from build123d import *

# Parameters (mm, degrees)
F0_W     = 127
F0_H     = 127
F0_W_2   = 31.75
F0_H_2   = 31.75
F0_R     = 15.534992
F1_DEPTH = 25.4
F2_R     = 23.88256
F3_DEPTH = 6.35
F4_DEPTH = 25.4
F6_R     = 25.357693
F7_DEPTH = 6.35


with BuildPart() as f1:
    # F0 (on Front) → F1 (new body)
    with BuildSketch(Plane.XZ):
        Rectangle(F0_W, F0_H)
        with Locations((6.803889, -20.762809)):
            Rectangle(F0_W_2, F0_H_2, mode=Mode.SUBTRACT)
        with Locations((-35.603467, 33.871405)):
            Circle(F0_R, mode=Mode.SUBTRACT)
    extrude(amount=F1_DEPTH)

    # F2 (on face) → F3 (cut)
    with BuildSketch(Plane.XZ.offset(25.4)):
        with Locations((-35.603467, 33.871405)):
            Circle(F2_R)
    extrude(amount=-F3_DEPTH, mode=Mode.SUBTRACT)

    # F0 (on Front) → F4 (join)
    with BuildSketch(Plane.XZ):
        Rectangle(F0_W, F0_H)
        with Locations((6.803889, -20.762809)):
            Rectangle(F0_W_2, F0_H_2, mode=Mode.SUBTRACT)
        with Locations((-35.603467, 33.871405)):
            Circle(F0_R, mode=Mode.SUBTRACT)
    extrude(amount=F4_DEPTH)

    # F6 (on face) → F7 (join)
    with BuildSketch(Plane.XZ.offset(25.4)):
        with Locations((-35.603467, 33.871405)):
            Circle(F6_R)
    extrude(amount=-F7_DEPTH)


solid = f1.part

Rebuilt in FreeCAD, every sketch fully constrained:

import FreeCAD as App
import Part
import Sketcher
Q = App.Units.Quantity


def add_polygon(sketch, points):
    """Adds a closed chain of lines whose ends are joined by coincident constraints."""
    first, n = sketch.GeometryCount, len(points)
    for a, b in zip(points, points[1:] + points[:1]):
        sketch.addGeometry(Part.LineSegment(App.Vector(*a, 0), App.Vector(*b, 0)), False)
    for i in range(n):
        sketch.addConstraint(Sketcher.Constraint("Coincident", first + i, 2, first + (i + 1) % n, 1))

doc = App.newDocument("Part")
body = doc.addObject("PartDesign::Body", "Body")

# Sketch on XZ plane
sketch1 = body.newObject("Sketcher::SketchObject", "Sketch")
sketch1.AttachmentSupport = (doc.getObject("XZ_Plane"), [""])
sketch1.MapMode = "FlatFace"
add_polygon(sketch1, [(-63.5, 63.5), (-63.5, -63.5), (63.5, -63.5), (63.5, 63.5)])  # lines 0-3
add_polygon(sketch1, [(22.678889, -36.637809), (-9.071111, -36.637809), (-9.071111, -4.887809), (22.678889, -4.887809)])  # lines 4-7
sketch1.addGeometry(Part.Circle(App.Vector(-35.603467, 33.871405, 0), App.Vector(0, 0, 1), 15.534992), False)  # 8
sketch1.addConstraint([
    Sketcher.Constraint("Vertical", 0),
    Sketcher.Constraint("Horizontal", 1),
    Sketcher.Constraint("Vertical", 2),
    Sketcher.Constraint("Horizontal", 3),
    Sketcher.Constraint("Horizontal", 4),
    Sketcher.Constraint("Vertical", 5),
    Sketcher.Constraint("Horizontal", 6),
    Sketcher.Constraint("Vertical", 7),
    Sketcher.Constraint("Symmetric", 0, 2, 2, 2, -1, 1),
    Sketcher.Constraint("Equal", 3, 0),
    Sketcher.Constraint("Equal", 6, 5),
    Sketcher.Constraint("DistanceX", 1, 1, 1, 2, Q("5 in")),
    Sketcher.Constraint("DistanceX", 4, 2, 4, 1, Q("1.25 in")),
    Sketcher.Constraint("Diameter", 8, 31.069984),
    Sketcher.Constraint("DistanceX", 4, 2, -1, 1, 9.071111),
    Sketcher.Constraint("DistanceY", 4, 2, -1, 1, 36.637809),
    Sketcher.Constraint("DistanceX", 8, 3, -1, 1, 35.603467),
    Sketcher.Constraint("DistanceY", -1, 1, 8, 3, 33.871405),
])
pad1 = body.newObject("PartDesign::Pad", "Pad")
pad1.Profile = sketch1
pad1.Length = Q("1 in")

# Sketch on XZ plane
sketch2 = body.newObject("Sketcher::SketchObject", "Sketch001")
sketch2.AttachmentSupport = (doc.getObject("XZ_Plane"), [""])
sketch2.MapMode = "FlatFace"
sketch2.AttachmentOffset = App.Placement(App.Vector(0, 0, 1 * 25.4), App.Rotation())
sketch2.addGeometry(Part.Circle(App.Vector(-35.603467, 33.871405, 0), App.Vector(0, 0, 1), 23.88256), False)
sketch2.addConstraint([
    Sketcher.Constraint("Diameter", 0, 47.76512),
    Sketcher.Constraint("DistanceX", 0, 3, -1, 1, 35.603467),
    Sketcher.Constraint("DistanceY", -1, 1, 0, 3, 33.871405),
])
pocket1 = body.newObject("PartDesign::Pocket", "Pocket")
pocket1.Profile = sketch2
pocket1.Length = Q("0.25 in")

# Sketch on XZ plane
sketch3 = body.newObject("Sketcher::SketchObject", "Sketch002")
sketch3.AttachmentSupport = (doc.getObject("XZ_Plane"), [""])
sketch3.MapMode = "FlatFace"
add_polygon(sketch3, [(-63.5, 63.5), (-63.5, -63.5), (63.5, -63.5), (63.5, 63.5)])  # lines 0-3
add_polygon(sketch3, [(22.678889, -36.637809), (-9.071111, -36.637809), (-9.071111, -4.887809), (22.678889, -4.887809)])  # lines 4-7
sketch3.addGeometry(Part.Circle(App.Vector(-35.603467, 33.871405, 0), App.Vector(0, 0, 1), 15.534992), False)  # 8
sketch3.addConstraint([
    Sketcher.Constraint("Vertical", 0),
    Sketcher.Constraint("Horizontal", 1),
    Sketcher.Constraint("Vertical", 2),
    Sketcher.Constraint("Horizontal", 3),
    Sketcher.Constraint("Horizontal", 4),
    Sketcher.Constraint("Vertical", 5),
    Sketcher.Constraint("Horizontal", 6),
    Sketcher.Constraint("Vertical", 7),
    Sketcher.Constraint("Symmetric", 0, 2, 2, 2, -1, 1),
    Sketcher.Constraint("Equal", 3, 0),
    Sketcher.Constraint("Equal", 6, 5),
    Sketcher.Constraint("DistanceX", 1, 1, 1, 2, Q("5 in")),
    Sketcher.Constraint("DistanceX", 4, 2, 4, 1, Q("1.25 in")),
    Sketcher.Constraint("Diameter", 8, 31.069984),
    Sketcher.Constraint("DistanceX", 4, 2, -1, 1, 9.071111),
    Sketcher.Constraint("DistanceY", 4, 2, -1, 1, 36.637809),
    Sketcher.Constraint("DistanceX", 8, 3, -1, 1, 35.603467),
    Sketcher.Constraint("DistanceY", -1, 1, 8, 3, 33.871405),
])
pad2 = body.newObject("PartDesign::Pad", "Pad001")
pad2.Profile = sketch3
pad2.Length = Q("1 in")

# Sketch on XZ plane
sketch4 = body.newObject("Sketcher::SketchObject", "Sketch003")
sketch4.AttachmentSupport = (doc.getObject("XZ_Plane"), [""])
sketch4.MapMode = "FlatFace"
sketch4.AttachmentOffset = App.Placement(App.Vector(0, 0, 1 * 25.4), App.Rotation())
sketch4.addGeometry(Part.Circle(App.Vector(-35.603467, 33.871405, 0), App.Vector(0, 0, 1), 25.357693), False)
sketch4.addConstraint([
    Sketcher.Constraint("Diameter", 0, 50.715386),
    Sketcher.Constraint("DistanceX", 0, 3, -1, 1, 35.603467),
    Sketcher.Constraint("DistanceY", -1, 1, 0, 3, 33.871405),
])
pad3 = body.newObject("PartDesign::Pad", "Pad002")
pad3.Profile = sketch4
pad3.Length = Q("0.25 in")
pad3.Reversed = True

doc.recompute()
